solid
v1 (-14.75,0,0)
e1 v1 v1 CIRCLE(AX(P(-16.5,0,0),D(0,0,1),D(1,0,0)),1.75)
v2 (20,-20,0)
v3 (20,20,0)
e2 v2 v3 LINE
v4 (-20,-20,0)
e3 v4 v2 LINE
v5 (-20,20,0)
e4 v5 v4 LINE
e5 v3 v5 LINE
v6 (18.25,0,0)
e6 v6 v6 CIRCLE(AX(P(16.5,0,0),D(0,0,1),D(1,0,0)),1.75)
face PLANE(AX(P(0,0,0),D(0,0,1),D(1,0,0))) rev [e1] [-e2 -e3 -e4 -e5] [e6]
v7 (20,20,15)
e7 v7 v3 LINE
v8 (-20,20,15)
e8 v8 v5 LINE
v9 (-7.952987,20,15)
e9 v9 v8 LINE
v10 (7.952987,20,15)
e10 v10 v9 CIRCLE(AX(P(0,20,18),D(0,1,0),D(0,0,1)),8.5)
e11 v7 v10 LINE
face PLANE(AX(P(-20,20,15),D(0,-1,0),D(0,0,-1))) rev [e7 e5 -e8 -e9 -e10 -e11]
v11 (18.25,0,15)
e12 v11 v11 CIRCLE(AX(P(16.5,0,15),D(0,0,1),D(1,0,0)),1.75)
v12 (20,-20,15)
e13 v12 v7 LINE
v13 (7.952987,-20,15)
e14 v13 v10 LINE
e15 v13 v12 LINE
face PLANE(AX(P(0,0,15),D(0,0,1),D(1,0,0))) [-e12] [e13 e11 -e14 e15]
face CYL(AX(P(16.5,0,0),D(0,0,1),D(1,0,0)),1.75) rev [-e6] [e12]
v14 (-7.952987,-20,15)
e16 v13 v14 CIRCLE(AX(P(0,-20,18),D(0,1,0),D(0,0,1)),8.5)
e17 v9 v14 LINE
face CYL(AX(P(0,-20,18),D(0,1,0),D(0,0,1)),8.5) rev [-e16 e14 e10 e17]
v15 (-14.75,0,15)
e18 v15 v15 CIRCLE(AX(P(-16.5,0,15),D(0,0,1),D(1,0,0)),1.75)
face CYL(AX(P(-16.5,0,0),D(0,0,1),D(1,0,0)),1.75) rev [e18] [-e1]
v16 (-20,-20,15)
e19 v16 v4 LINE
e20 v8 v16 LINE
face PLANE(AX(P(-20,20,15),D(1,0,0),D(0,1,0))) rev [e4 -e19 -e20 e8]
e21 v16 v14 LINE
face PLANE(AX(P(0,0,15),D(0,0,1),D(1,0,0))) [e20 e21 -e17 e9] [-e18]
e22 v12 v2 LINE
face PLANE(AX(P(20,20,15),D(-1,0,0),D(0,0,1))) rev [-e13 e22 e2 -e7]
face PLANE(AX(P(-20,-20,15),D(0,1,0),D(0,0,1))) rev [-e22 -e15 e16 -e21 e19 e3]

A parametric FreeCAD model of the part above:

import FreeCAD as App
import Part
import Sketcher

V = App.Vector


def add_polygon(sketch, points):
    """Adds a closed chain of lines whose ends are joined by coincident constraints."""
    first, n = sketch.GeometryCount, len(points)
    for a, b in zip(points, points[1:] + points[:1]):
        sketch.addGeometry(Part.LineSegment(App.Vector(*a, 0), App.Vector(*b, 0)), False)
    for i in range(n):
        sketch.addConstraint(Sketcher.Constraint("Coincident", first + i, 2, first + (i + 1) % n, 1))

doc = App.newDocument("Part")
body = doc.addObject("PartDesign::Body", "Body")

# Sketch on XY plane
sketch1 = body.newObject("Sketcher::SketchObject", "Sketch")
sketch1.AttachmentSupport = (doc.getObject("XY_Plane"), [""])
sketch1.MapMode = "FlatFace"
add_polygon(sketch1, [(-20, 20), (-20, -20), (20, -20), (20, 20)])  # lines 0-3
sketch1.addConstraint([
    Sketcher.Constraint("Vertical", 0),
    Sketcher.Constraint("Horizontal", 1),
    Sketcher.Constraint("Vertical", 2),
    Sketcher.Constraint("Horizontal", 3),
    Sketcher.Constraint("Symmetric", 0, 2, 2, 2, -1, 1),
    Sketcher.Constraint("Equal", 3, 0),
    Sketcher.Constraint("DistanceX", 1, 1, 1, 2, 40.0),
])
pad1 = body.newObject("PartDesign::Pad", "Pad")
pad1.Profile = sketch1
pad1.Length = 15

# Sketch on XY plane
sketch2 = body.newObject("Sketcher::SketchObject", "Sketch001")
sketch2.AttachmentSupport = (doc.getObject("XY_Plane"), [""])
sketch2.MapMode = "FlatFace"
sketch2.AttachmentOffset = App.Placement(V(0, 0, 15), App.Rotation())
sketch2.addGeometry([
    Part.Circle(V(-16.5, 0, 0), V(0, 0, 1), 1.8),
    Part.Circle(V(16.5, 0, 0), V(0, 0, 1), 1.8),
], False)
sketch2.addConstraint([
    Sketcher.Constraint("Equal", 0, 1),
    Sketcher.Constraint("Symmetric", 0, 3, 1, 3, -1, 1),
    Sketcher.Constraint("PointOnObject", 0, 3, -1),
    Sketcher.Constraint("Diameter", 0, 3.5),
    Sketcher.Constraint("DistanceX", 0, 3, 1, 3, 33.0),
])
pocket1 = body.newObject("PartDesign::Pocket", "Pocket")
pocket1.Profile = sketch2
pocket1.Type = "ThroughAll"

# Sketch on XZ plane
sketch3 = body.newObject("Sketcher::SketchObject", "Sketch002")
sketch3.AttachmentSupport = (doc.getObject("XZ_Plane"), [""])
sketch3.MapMode = "FlatFace"
sketch3.AttachmentOffset = App.Placement(V(0, 0, -20), App.Rotation())
sketch3.addGeometry(Part.Circle(V(0, 18, 0), V(0, 0, 1), 8), False)
sketch3.addConstraint([
    Sketcher.Constraint("PointOnObject", 0, 3, -2),
    Sketcher.Constraint("Diameter", 0, 17.0),
    Sketcher.Constraint("DistanceY", -1, 1, 0, 3, 18.0),
])
pocket2 = body.newObject("PartDesign::Pocket", "Pocket001")
pocket2.Profile = sketch3
pocket2.Type = "ThroughAll"
pocket2.Reversed = True

doc.recompute()
